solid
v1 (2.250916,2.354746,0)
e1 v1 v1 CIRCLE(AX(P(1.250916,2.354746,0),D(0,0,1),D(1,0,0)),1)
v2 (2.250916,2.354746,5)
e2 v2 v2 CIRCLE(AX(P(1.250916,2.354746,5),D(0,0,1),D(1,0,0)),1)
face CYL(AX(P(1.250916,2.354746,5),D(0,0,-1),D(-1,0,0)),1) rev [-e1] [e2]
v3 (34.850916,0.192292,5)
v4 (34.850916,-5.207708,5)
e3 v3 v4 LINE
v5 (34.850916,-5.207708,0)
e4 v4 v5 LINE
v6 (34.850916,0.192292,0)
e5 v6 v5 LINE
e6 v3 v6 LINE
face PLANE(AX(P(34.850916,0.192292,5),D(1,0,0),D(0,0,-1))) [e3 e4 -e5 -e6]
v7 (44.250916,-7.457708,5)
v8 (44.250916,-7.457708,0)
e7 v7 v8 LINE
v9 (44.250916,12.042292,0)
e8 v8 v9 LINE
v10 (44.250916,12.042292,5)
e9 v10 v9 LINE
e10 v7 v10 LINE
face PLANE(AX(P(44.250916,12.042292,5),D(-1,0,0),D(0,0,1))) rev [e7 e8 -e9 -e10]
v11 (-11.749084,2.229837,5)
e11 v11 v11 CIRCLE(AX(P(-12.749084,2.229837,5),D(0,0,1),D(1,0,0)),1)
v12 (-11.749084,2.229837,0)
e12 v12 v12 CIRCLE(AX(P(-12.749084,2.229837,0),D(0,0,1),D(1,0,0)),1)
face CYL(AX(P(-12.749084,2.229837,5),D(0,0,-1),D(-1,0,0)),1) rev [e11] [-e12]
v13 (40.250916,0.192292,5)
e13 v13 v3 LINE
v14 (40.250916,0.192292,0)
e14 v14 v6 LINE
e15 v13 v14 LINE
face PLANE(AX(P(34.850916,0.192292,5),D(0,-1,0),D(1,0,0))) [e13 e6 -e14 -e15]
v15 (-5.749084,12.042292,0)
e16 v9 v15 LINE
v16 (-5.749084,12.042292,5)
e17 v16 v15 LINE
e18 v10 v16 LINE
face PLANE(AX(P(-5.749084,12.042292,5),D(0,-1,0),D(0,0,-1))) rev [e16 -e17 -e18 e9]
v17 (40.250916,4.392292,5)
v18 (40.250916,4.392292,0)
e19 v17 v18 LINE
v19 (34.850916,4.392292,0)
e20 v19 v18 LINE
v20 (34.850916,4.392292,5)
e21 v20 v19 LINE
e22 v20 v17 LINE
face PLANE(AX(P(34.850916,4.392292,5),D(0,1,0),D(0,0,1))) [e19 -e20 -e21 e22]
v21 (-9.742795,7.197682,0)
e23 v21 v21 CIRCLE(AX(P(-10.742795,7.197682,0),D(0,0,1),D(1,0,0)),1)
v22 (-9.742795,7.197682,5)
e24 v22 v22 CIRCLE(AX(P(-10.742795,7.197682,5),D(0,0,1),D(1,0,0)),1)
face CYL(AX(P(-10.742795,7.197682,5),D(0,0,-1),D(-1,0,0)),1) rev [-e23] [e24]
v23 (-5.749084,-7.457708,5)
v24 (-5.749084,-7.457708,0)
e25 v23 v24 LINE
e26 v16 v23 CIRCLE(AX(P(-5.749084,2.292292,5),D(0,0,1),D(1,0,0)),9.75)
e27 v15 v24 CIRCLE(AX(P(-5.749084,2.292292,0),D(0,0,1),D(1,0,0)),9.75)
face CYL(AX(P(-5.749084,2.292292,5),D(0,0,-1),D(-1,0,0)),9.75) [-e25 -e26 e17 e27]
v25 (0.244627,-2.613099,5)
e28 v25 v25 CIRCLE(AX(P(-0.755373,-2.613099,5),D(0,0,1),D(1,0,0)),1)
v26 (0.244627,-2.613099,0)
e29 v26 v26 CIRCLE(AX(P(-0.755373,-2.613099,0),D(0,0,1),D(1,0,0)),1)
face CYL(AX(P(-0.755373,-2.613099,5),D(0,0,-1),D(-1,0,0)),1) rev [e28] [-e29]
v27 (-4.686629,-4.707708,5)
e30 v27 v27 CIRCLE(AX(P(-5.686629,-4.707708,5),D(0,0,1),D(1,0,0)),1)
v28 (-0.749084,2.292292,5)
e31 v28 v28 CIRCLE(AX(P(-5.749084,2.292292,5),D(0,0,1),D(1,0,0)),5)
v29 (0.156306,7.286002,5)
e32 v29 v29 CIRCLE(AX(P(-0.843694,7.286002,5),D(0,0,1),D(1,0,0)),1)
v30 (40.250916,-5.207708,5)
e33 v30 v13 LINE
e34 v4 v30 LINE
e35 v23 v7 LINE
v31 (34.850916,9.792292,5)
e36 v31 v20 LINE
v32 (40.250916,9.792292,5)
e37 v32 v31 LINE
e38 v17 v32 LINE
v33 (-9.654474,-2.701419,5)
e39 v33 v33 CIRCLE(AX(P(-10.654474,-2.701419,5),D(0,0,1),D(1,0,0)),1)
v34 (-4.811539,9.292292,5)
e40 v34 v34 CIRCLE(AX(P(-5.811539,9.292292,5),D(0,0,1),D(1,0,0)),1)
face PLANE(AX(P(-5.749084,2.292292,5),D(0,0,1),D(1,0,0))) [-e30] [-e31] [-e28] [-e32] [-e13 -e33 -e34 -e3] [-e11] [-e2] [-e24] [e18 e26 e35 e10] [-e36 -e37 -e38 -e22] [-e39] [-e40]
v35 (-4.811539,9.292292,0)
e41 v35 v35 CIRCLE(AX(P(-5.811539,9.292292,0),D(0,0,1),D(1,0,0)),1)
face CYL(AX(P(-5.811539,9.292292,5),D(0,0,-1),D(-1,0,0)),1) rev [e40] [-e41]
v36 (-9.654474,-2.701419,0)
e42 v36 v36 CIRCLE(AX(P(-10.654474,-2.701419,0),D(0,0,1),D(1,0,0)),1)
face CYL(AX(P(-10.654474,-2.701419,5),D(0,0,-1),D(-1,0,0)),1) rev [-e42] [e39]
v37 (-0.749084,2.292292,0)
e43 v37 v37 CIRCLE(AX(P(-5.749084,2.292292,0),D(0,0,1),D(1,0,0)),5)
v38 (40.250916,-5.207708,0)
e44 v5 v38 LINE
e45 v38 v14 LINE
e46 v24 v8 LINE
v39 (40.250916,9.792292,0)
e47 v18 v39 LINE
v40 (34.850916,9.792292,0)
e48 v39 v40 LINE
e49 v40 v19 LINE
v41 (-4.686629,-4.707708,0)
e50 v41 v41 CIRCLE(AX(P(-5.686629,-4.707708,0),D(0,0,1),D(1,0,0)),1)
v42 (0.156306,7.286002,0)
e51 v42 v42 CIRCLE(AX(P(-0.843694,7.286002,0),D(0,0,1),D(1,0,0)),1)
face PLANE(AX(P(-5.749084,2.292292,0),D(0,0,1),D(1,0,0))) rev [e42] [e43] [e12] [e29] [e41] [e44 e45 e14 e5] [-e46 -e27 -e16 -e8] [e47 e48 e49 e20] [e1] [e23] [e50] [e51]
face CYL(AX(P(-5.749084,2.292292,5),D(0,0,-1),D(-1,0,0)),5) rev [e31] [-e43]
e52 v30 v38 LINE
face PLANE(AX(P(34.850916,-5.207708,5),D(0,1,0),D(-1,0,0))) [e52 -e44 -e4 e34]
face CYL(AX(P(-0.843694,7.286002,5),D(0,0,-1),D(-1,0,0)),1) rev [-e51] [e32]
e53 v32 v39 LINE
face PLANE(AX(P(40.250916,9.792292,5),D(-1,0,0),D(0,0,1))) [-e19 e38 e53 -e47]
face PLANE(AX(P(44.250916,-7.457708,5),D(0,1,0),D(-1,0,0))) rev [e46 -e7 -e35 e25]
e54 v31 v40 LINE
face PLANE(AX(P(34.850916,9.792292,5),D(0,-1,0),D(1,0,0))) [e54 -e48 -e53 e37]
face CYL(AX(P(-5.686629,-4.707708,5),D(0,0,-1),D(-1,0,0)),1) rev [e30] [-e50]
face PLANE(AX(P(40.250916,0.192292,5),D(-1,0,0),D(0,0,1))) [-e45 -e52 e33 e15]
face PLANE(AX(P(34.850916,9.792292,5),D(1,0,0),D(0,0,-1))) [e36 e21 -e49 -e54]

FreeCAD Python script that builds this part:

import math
import FreeCAD as App
import Part
import Sketcher

V = App.Vector
Q = App.Units.Quantity

doc = App.newDocument("Part")
body = doc.addObject("PartDesign::Body", "Body")

# Sketch on XY plane
sketch1 = body.newObject("Sketcher::SketchObject", "Sketch")
sketch1.AttachmentSupport = (doc.getObject("XY_Plane"), [""])
sketch1.MapMode = "FlatFace"
sketch1.addGeometry([
    Part.LineSegment(V(44.3, 12, 0), V(-5.7, 12, 0)),  # 0
    Part.ArcOfCircle(Part.Circle(V(-5.7, 2.3, 0), V(0, 0, 1), 9.8), math.radians(90), math.radians(270)),  # 1
    Part.LineSegment(V(-5.7, -7.5, 0), V(44.3, -7.5, 0)),  # 2
    Part.LineSegment(V(44.3, -7.5, 0), V(44.3, 12, 0)),  # 3
    Part.LineSegment(V(34.9, -5.2, 0), V(34.9, 0.2, 0)),  # 4
    Part.LineSegment(V(34.9, 0.2, 0), V(40.3, 0.2, 0)),  # 5
    Part.LineSegment(V(40.3, 0.2, 0), V(40.3, -5.2, 0)),  # 6
    Part.LineSegment(V(40.3, -5.2, 0), V(34.9, -5.2, 0)),  # 7
    Part.Circle(V(-5.7, -4.7, 0), V(0, 0, 1), 1),  # 8
    Part.Circle(V(-0.8, -2.6, 0), V(0, 0, 1), 1),  # 9
    Part.Circle(V(-10.7, -2.7, 0), V(0, 0, 1), 1),  # 10
    Part.Circle(V(-12.7, 2.2, 0), V(0, 0, 1), 1),  # 11
    Part.LineSegment(V(34.9, 4.4, 0), V(34.9, 9.8, 0)),  # 12
    Part.LineSegment(V(34.9, 9.8, 0), V(40.3, 9.8, 0)),  # 13
    Part.LineSegment(V(40.3, 9.8, 0), V(40.3, 4.4, 0)),  # 14
    Part.LineSegment(V(40.3, 4.4, 0), V(34.9, 4.4, 0)),  # 15
    Part.Circle(V(1.3, 2.4, 0), V(0, 0, 1), 1),  # 16
    Part.Circle(V(-5.7, 2.3, 0), V(0, 0, 1), 5),  # 17
    Part.Circle(V(-0.8, 7.3, 0), V(0, 0, 1), 1),  # 18
    Part.Circle(V(-10.7, 7.2, 0), V(0, 0, 1), 1),  # 19
    Part.Circle(V(-5.8, 9.3, 0), V(0, 0, 1), 1),  # 20
], False)
sketch1.addConstraint([
    Sketcher.Constraint("Tangent", 0, 2, 1, 1),
    Sketcher.Constraint("Tangent", 1, 2, 2, 1),
    Sketcher.Constraint("Coincident", 2, 2, 3, 1),
    Sketcher.Constraint("Coincident", 3, 2, 0, 1),
    Sketcher.Constraint("Coincident", 4, 2, 5, 1),
    Sketcher.Constraint("Coincident", 5, 2, 6, 1),
    Sketcher.Constraint("Coincident", 6, 2, 7, 1),
    Sketcher.Constraint("Coincident", 7, 2, 4, 1),
    Sketcher.Constraint("Coincident", 12, 2, 13, 1),
    Sketcher.Constraint("Coincident", 13, 2, 14, 1),
    Sketcher.Constraint("Coincident", 14, 2, 15, 1),
    Sketcher.Constraint("Coincident", 15, 2, 12, 1),
    Sketcher.Constraint("Horizontal", 0),
    Sketcher.Constraint("Horizontal", 2),
    Sketcher.Constraint("Vertical", 3),
    Sketcher.Constraint("Vertical", 4),
    Sketcher.Constraint("Horizontal", 5),
    Sketcher.Constraint("Vertical", 6),
    Sketcher.Constraint("Horizontal", 7),
    Sketcher.Constraint("Vertical", 12),
    Sketcher.Constraint("Horizontal", 13),
    Sketcher.Constraint("Vertical", 14),
    Sketcher.Constraint("Horizontal", 15),
    Sketcher.Constraint("Coincident", 17, 3, 1, 3),
    Sketcher.Constraint("Equal", 8, 9),
    Sketcher.Constraint("Equal", 9, 10),
    Sketcher.Constraint("Equal", 10, 11),
    Sketcher.Constraint("Equal", 11, 16),
    Sketcher.Constraint("Equal", 16, 18),
    Sketcher.Constraint("Equal", 18, 19),
    Sketcher.Constraint("Equal", 19, 20),
    Sketcher.Constraint("Vertical", 7, 2, 12, 2),
    Sketcher.Constraint("Vertical", 6, 2, 13, 2),
    Sketcher.Constraint("Equal", 15, 4),
    Sketcher.Constraint("Equal", 6, 12),
    Sketcher.Constraint("Diameter", 8, Q("2 mm")),
    Sketcher.Constraint("Diameter", 17, Q("10 mm")),
    Sketcher.Constraint("DistanceX", 0, 2, 0, 1, Q("50 mm")),
    Sketcher.Constraint("Radius", 1, Q("9.75 mm")),
    Sketcher.Constraint("DistanceX", 5, 1, 5, 2, Q("5.4 mm")),
    Sketcher.Constraint("DistanceY", 8, 3, 1, 3, Q("7 mm")),
    Sketcher.Constraint("DistanceX", 11, 3, 1, 3, Q("7 mm")),
    Sketcher.Constraint("DistanceX", 1, 3, 16, 3, Q("7 mm")),
    Sketcher.Constraint("DistanceY", 1, 3, 20, 3, Q("7 mm")),
    Sketcher.Constraint("DistanceX", 5, 2, 2, 2, Q("4 mm")),
    Sketcher.Constraint("DistanceY", 7, 2, 12, 2, Q("15 mm")),
    Sketcher.Constraint("DistanceY", 2, 2, 4, 2, Q("7.65 mm")),
    Sketcher.Constraint("DistanceY", 9, 3, -1, 1, Q("2.613099 mm")),
    Sketcher.Constraint("DistanceX", 10, 3, 9, 3, Q("9.899101 mm")),
    Sketcher.Constraint("DistanceY", 9, 3, 18, 3, Q("9.899101 mm")),
    Sketcher.Constraint("DistanceX", 19, 3, 18, 3, Q("9.899101 mm")),
    Sketcher.Constraint("DistanceY", 10, 3, 19, 3, Q("9.899101 mm")),
    Sketcher.Constraint("DistanceY", -1, 1, 1, 3, Q("2.292292 mm")),
    Sketcher.Constraint("DistanceX", 8, 3, -1, 1, Q("5.686629 mm")),
    Sketcher.Constraint("DistanceY", 10, 3, -1, 1, Q("2.701419 mm")),
    Sketcher.Constraint("DistanceX", 20, 3, -1, 1, Q("5.811539 mm")),
    Sketcher.Constraint("DistanceX", 1, 3, 9, 3, Q("4.993711 mm")),
    Sketcher.Constraint("DistanceY", 11, 3, 16, 3, Q("0.124909 mm")),
    Sketcher.Constraint("DistanceX", 18, 3, 16, 3, Q("2.09461 mm")),
    Sketcher.Constraint("DistanceX", 1, 3, -1, 1, Q("5.749084 mm")),
    Sketcher.Constraint("DistanceY", -1, 1, 11, 3, Q("2.229837 mm")),
])
pad1 = body.newObject("PartDesign::Pad", "Pad")
pad1.Profile = sketch1
pad1.Length = 5

doc.recompute()
